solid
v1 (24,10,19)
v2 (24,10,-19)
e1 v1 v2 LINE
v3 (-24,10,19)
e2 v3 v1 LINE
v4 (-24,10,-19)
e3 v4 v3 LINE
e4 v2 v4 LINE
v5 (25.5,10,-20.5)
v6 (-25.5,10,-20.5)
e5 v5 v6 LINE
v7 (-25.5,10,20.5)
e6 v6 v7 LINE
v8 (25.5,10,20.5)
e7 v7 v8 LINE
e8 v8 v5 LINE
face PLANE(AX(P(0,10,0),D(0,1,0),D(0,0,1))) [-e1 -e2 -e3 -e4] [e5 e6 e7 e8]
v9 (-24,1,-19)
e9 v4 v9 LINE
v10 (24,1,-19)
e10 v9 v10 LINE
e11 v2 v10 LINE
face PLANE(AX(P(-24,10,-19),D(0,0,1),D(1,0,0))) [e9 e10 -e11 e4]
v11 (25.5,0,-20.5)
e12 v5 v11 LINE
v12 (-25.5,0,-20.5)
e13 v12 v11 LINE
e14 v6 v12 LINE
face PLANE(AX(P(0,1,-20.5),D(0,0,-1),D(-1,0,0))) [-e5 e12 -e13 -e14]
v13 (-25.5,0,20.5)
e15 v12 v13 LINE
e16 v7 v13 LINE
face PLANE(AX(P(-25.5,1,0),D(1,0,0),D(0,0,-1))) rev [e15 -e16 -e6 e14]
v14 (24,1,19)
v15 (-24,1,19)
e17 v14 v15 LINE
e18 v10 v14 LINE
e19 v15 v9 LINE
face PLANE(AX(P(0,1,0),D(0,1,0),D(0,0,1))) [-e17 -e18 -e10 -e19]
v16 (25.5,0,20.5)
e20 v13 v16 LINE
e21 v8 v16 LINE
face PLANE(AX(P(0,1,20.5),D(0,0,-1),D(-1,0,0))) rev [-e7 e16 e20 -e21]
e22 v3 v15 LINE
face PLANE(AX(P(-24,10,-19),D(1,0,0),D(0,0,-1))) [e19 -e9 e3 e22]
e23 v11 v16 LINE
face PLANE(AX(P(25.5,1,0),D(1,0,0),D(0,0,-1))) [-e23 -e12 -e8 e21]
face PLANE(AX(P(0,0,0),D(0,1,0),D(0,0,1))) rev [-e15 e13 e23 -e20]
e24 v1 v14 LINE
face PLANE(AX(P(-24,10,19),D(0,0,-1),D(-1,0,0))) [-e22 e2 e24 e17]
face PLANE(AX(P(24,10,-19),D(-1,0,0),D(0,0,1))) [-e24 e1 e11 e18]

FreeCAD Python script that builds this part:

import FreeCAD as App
import Part
import Sketcher
Q = App.Units.Quantity


def add_polygon(sketch, points):
    """Adds a closed chain of lines whose ends are joined by coincident constraints."""
    first, n = sketch.GeometryCount, len(points)
    for a, b in zip(points, points[1:] + points[:1]):
        sketch.addGeometry(Part.LineSegment(App.Vector(*a, 0), App.Vector(*b, 0)), False)
    for i in range(n):
        sketch.addConstraint(Sketcher.Constraint("Coincident", first + i, 2, first + (i + 1) % n, 1))

doc = App.newDocument("Part")
body = doc.addObject("PartDesign::Body", "Body")

sketch1 = body.newObject("Sketcher::SketchObject", "Sketch")
sketch1.AttachmentSupport = (doc.getObject("XZ_Plane"), [""])
sketch1.MapMode = "FlatFace"
add_polygon(sketch1, [(-25.5, -20.5), (-25.5, 20.5), (25.5, 20.5), (25.5, -20.5)])
sketch1.addConstraint(Sketcher.Constraint("Vertical", 0))
sketch1.addConstraint(Sketcher.Constraint("Horizontal", 1))
sketch1.addConstraint(Sketcher.Constraint("Vertical", 2))
sketch1.addConstraint(Sketcher.Constraint("Horizontal", 3))
sketch1.addConstraint(Sketcher.Constraint("Symmetric", 0, 2, 2, 2, -1, 1))
sketch1.addConstraint(Sketcher.Constraint("DistanceX", 1, 1, 1, 2, Q("51 mm")))
sketch1.addConstraint(Sketcher.Constraint("DistanceY", 0, 1, 0, 2, Q("41 mm")))
pad1 = body.newObject("PartDesign::Pad", "Pad")
pad1.Profile = sketch1
pad1.Length = 1
pad1.Reversed = True

sketch2 = body.newObject("Sketcher::SketchObject", "Sketch001")
sketch2.AttachmentSupport = (doc.getObject("XZ_Plane"), [""])
sketch2.MapMode = "FlatFace"
add_polygon(sketch2, [(-25.5, -20.5), (-25.5, 20.5), (25.5, 20.5), (25.5, -20.5)])
add_polygon(sketch2, [(24, 19), (-24, 19), (-24, -19), (24, -19)])
sketch2.addConstraint(Sketcher.Constraint("Vertical", 0))
sketch2.addConstraint(Sketcher.Constraint("Horizontal", 1))
sketch2.addConstraint(Sketcher.Constraint("Vertical", 2))
sketch2.addConstraint(Sketcher.Constraint("Horizontal", 3))
sketch2.addConstraint(Sketcher.Constraint("Horizontal", 4))
sketch2.addConstraint(Sketcher.Constraint("Vertical", 5))
sketch2.addConstraint(Sketcher.Constraint("Horizontal", 6))
sketch2.addConstraint(Sketcher.Constraint("Vertical", 7))
sketch2.addConstraint(Sketcher.Constraint("Symmetric", 0, 2, 2, 2, -1, 1))
sketch2.addConstraint(Sketcher.Constraint("Symmetric", 4, 2, 6, 2, -1, 1))
sketch2.addConstraint(Sketcher.Constraint("DistanceX", 1, 1, 1, 2, Q("51 mm")))
sketch2.addConstraint(Sketcher.Constraint("DistanceX", 4, 2, 4, 1, Q("48 mm")))
sketch2.addConstraint(Sketcher.Constraint("DistanceY", 0, 1, 0, 2, Q("41 mm")))
sketch2.addConstraint(Sketcher.Constraint("DistanceY", 5, 2, 5, 1, Q("38 mm")))
pad2 = body.newObject("PartDesign::Pad", "Pad001")
pad2.Profile = sketch2
pad2.Length = 10
pad2.Reversed = True

doc.recompute()
